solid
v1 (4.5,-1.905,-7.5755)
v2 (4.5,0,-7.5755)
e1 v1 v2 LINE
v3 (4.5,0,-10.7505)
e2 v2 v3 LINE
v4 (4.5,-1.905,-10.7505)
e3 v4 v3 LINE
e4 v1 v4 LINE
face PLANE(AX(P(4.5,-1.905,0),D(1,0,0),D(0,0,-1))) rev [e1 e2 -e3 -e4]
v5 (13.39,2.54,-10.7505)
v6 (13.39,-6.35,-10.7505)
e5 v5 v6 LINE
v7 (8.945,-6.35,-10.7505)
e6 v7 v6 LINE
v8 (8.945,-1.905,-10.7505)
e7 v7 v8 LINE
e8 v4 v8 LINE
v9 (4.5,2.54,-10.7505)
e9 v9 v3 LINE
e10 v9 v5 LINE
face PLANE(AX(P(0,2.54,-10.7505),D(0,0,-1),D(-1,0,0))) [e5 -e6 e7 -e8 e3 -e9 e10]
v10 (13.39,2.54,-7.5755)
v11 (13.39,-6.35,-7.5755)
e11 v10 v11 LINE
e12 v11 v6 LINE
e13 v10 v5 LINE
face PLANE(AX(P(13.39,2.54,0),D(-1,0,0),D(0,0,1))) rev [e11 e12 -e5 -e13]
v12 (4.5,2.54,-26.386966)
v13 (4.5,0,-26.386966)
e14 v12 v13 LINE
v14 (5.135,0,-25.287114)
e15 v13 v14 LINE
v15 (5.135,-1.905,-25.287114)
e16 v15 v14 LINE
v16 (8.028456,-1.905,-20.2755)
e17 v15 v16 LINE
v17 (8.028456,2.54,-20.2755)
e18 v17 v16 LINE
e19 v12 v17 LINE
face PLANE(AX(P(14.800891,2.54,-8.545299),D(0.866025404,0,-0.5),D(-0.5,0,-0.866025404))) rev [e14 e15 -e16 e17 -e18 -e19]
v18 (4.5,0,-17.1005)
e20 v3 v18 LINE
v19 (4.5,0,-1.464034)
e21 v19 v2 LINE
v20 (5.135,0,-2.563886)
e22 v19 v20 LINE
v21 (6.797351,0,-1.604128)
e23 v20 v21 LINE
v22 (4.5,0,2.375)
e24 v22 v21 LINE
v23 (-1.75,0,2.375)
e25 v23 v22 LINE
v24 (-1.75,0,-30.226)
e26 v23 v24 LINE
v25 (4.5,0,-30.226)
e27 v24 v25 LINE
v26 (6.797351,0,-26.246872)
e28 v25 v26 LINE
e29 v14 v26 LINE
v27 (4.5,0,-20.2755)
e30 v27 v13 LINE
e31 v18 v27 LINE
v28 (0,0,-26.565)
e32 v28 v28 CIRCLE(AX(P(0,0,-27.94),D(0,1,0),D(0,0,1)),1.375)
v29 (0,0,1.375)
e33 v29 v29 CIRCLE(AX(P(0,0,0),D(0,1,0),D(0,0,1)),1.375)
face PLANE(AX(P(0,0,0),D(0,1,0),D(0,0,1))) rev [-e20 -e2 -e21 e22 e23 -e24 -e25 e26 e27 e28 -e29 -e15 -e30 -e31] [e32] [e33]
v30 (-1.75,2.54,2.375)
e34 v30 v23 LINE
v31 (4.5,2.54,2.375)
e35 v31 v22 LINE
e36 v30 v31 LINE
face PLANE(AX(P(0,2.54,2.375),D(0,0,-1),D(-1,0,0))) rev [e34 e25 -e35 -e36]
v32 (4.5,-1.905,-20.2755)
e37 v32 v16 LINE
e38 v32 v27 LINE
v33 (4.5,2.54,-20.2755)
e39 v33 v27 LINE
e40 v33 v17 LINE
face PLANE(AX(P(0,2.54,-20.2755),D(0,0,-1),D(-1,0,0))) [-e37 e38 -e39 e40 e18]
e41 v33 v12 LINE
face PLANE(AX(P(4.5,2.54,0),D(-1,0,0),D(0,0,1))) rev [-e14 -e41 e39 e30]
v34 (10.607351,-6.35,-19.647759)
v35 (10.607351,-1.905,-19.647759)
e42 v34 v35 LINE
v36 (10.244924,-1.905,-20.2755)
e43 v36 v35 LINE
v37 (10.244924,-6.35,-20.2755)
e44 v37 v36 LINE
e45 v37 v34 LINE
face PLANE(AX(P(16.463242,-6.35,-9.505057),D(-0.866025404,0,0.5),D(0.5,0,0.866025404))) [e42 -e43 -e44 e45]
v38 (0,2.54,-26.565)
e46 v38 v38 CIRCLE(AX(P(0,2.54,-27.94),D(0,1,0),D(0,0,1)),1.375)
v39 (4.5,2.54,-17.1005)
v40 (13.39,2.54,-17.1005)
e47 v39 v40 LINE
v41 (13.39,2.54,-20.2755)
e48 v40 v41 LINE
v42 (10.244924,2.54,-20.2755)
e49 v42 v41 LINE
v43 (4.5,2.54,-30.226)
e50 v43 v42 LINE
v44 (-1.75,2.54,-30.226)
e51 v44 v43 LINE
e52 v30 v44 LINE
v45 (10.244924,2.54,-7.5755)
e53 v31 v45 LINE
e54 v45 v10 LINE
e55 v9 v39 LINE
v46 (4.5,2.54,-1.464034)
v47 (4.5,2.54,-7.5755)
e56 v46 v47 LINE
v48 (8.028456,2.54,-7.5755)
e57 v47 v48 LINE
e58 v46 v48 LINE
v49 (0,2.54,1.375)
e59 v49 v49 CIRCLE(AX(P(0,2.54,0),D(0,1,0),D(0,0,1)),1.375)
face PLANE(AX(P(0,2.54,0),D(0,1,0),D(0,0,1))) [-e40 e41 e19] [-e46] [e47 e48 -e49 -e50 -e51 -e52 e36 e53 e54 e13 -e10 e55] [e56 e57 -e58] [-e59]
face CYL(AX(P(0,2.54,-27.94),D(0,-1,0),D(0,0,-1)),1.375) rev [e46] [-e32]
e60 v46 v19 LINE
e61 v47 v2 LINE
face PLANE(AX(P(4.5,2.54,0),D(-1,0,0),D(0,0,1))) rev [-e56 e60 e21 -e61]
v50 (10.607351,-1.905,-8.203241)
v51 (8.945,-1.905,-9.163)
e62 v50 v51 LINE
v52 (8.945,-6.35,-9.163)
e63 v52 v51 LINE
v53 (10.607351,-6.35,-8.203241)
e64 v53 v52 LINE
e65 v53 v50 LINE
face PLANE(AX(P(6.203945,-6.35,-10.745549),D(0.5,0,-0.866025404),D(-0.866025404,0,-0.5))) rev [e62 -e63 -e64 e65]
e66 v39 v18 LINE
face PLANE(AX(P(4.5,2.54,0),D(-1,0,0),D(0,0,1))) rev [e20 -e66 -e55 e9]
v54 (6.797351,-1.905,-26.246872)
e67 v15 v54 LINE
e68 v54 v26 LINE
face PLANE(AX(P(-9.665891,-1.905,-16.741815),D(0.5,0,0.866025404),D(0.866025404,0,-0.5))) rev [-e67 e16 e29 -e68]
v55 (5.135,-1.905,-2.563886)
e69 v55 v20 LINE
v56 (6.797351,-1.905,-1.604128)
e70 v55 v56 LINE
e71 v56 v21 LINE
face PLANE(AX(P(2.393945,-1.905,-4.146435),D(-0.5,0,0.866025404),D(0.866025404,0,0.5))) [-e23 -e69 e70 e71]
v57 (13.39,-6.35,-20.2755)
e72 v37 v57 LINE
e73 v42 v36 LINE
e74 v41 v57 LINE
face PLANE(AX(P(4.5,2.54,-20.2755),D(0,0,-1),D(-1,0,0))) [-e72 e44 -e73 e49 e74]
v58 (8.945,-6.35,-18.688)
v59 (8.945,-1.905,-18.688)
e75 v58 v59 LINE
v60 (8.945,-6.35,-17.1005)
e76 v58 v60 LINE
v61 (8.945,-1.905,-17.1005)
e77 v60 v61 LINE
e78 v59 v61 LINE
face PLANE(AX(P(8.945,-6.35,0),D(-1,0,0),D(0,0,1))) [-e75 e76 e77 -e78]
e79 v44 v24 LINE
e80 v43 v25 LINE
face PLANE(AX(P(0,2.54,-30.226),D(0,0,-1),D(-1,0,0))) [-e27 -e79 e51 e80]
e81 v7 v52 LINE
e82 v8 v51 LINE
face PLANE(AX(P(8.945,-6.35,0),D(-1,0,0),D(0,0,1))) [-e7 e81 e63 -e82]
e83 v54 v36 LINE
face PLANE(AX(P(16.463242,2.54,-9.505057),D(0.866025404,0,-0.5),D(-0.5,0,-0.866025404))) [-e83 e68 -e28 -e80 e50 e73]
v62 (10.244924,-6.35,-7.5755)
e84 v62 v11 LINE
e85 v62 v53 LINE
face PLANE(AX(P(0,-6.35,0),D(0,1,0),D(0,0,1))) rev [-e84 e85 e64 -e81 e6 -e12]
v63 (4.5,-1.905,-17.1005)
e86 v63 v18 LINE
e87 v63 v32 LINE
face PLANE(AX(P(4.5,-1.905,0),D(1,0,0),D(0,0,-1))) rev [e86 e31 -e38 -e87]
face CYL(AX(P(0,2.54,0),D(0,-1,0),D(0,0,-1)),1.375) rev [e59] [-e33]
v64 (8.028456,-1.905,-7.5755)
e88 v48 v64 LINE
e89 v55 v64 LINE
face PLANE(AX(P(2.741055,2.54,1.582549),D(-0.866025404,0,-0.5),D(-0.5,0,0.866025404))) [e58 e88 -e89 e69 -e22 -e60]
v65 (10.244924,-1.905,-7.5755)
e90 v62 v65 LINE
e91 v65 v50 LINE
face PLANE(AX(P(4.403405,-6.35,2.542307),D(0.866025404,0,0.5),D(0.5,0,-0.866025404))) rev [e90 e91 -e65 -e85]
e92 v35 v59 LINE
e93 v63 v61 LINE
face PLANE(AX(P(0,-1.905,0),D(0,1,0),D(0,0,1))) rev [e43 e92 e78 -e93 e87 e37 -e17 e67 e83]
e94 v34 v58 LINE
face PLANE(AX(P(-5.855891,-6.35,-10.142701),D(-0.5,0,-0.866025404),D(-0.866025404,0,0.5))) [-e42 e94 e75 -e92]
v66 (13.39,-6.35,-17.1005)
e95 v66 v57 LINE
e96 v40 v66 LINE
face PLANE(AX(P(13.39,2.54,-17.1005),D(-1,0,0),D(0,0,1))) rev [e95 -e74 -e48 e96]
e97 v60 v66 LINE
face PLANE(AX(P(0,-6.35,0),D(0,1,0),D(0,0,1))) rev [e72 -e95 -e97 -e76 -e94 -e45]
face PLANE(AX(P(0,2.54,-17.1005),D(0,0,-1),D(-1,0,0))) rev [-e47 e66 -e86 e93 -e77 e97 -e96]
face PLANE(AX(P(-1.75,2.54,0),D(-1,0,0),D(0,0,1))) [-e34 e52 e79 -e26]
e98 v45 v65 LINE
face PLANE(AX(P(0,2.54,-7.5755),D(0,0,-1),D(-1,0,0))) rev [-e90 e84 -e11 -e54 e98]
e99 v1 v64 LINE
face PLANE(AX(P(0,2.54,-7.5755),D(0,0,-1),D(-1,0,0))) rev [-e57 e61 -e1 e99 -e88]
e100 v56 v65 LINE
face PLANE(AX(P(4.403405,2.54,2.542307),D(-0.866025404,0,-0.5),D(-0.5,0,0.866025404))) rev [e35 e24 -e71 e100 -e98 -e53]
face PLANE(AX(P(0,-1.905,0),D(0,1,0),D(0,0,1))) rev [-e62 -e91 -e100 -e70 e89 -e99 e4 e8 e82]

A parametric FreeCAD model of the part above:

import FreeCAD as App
import Part
import Sketcher
Q = App.Units.Quantity

doc = App.newDocument("Part")
params = doc.addObject("Spreadsheet::Sheet", "Params")
for row, (alias, value) in enumerate([
    ("sketch1_width", "0.35 in"),
    ("sketch1_height", "0.25 in"),
    ("pad1_length", "0.1 in"),
    ("sketch2_width", "0.35 in"),
    ("sketch2_height", "0.125 in"),
    ("pad2_length", "0.075 in"),
    ("sketch3_width", "0.175 in"),
    ("sketch3_height", "0.0625 in"),
    ("sketch3_height2", "0.125 in"),
    ("pad3_length", "0.25 in"),
], start=1):
    params.set(f"A{row}", alias)
    params.set(f"B{row}", "=" + value)
    params.setAlias(f"B{row}", alias)

body = doc.addObject("PartDesign::Body", "Body")

sketch1 = body.newObject("Sketcher::SketchObject", "Sketch")
sketch1.AttachmentSupport = (doc.getObject("XZ_Plane"), [""])
sketch1.MapMode = "FlatFace"
sketch1.addGeometry(Part.LineSegment(App.Vector(4.5, 2.4, 0), App.Vector(10.2, -7.6, 0)), False)
sketch1.addGeometry(Part.LineSegment(App.Vector(10.2, -7.6, 0), App.Vector(13.4, -7.6, 0)), False)
sketch1.addGeometry(Part.LineSegment(App.Vector(13.4, -7.6, 0), App.Vector(13.4, -10.8, 0)), False)
sketch1.addGeometry(Part.LineSegment(App.Vector(13.4, -10.8, 0), App.Vector(4.5, -10.8, 0)), False)
sketch1.addGeometry(Part.LineSegment(App.Vector(4.5, -10.8, 0), App.Vector(4.5, -17.1, 0)), False)
sketch1.addGeometry(Part.LineSegment(App.Vector(4.5, -17.1, 0), App.Vector(13.4, -17.1, 0)), False)
sketch1.addGeometry(Part.LineSegment(App.Vector(13.4, -17.1, 0), App.Vector(13.4, -20.3, 0)), False)
sketch1.addGeometry(Part.LineSegment(App.Vector(13.4, -20.3, 0), App.Vector(10.2, -20.3, 0)), False)
sketch1.addGeometry(Part.LineSegment(App.Vector(10.2, -20.3, 0), App.Vector(4.5, -30.2, 0)), False)
sketch1.addGeometry(Part.LineSegment(App.Vector(4.5, -30.2, 0), App.Vector(-1.8, -30.2, 0)), False)
sketch1.addGeometry(Part.LineSegment(App.Vector(-1.8, -30.2, 0), App.Vector(-1.8, 2.4, 0)), False)
sketch1.addGeometry(Part.LineSegment(App.Vector(-1.8, 2.4, 0), App.Vector(4.5, 2.4, 0)), False)
sketch1.addGeometry(Part.Circle(App.Vector(0, 0, 0), App.Vector(0, 0, 1), 1.4), False)
sketch1.addGeometry(Part.LineSegment(App.Vector(4.5, -1.5, 0), App.Vector(4.5, -7.6, 0)), False)
sketch1.addGeometry(Part.LineSegment(App.Vector(4.5, -7.6, 0), App.Vector(8, -7.6, 0)), False)
sketch1.addGeometry(Part.LineSegment(App.Vector(8, -7.6, 0), App.Vector(4.5, -1.5, 0)), False)
sketch1.addGeometry(Part.Circle(App.Vector(0, -27.9, 0), App.Vector(0, 0, 1), 1.4), False)
sketch1.addGeometry(Part.LineSegment(App.Vector(4.5, -20.3, 0), App.Vector(4.5, -26.4, 0)), False)
sketch1.addGeometry(Part.LineSegment(App.Vector(4.5, -26.4, 0), App.Vector(8, -20.3, 0)), False)
sketch1.addGeometry(Part.LineSegment(App.Vector(8, -20.3, 0), App.Vector(4.5, -20.3, 0)), False)
sketch1.addConstraint(Sketcher.Constraint("Coincident", 0, 2, 1, 1))
sketch1.addConstraint(Sketcher.Constraint("Coincident", 1, 2, 2, 1))
sketch1.addConstraint(Sketcher.Constraint("Coincident", 2, 2, 3, 1))
sketch1.addConstraint(Sketcher.Constraint("Coincident", 3, 2, 4, 1))
sketch1.addConstraint(Sketcher.Constraint("Coincident", 4, 2, 5, 1))
sketch1.addConstraint(Sketcher.Constraint("Coincident", 5, 2, 6, 1))
sketch1.addConstraint(Sketcher.Constraint("Coincident", 6, 2, 7, 1))
sketch1.addConstraint(Sketcher.Constraint("Coincident", 7, 2, 8, 1))
sketch1.addConstraint(Sketcher.Constraint("Coincident", 8, 2, 9, 1))
sketch1.addConstraint(Sketcher.Constraint("Coincident", 9, 2, 10, 1))
sketch1.addConstraint(Sketcher.Constraint("Coincident", 10, 2, 11, 1))
sketch1.addConstraint(Sketcher.Constraint("Coincident", 11, 2, 0, 1))
sketch1.addConstraint(Sketcher.Constraint("Coincident", 13, 2, 14, 1))
sketch1.addConstraint(Sketcher.Constraint("Coincident", 14, 2, 15, 1))
sketch1.addConstraint(Sketcher.Constraint("Coincident", 15, 2, 13, 1))
sketch1.addConstraint(Sketcher.Constraint("Coincident", 17, 2, 18, 1))
sketch1.addConstraint(Sketcher.Constraint("Coincident", 18, 2, 19, 1))
sketch1.addConstraint(Sketcher.Constraint("Coincident", 19, 2, 17, 1))
sketch1.addConstraint(Sketcher.Constraint("Horizontal", 1))
sketch1.addConstraint(Sketcher.Constraint("Vertical", 2))
sketch1.addConstraint(Sketcher.Constraint("Horizontal", 3))
sketch1.addConstraint(Sketcher.Constraint("Vertical", 4))
sketch1.addConstraint(Sketcher.Constraint("Horizontal", 5))
sketch1.addConstraint(Sketcher.Constraint("Vertical", 6))
sketch1.addConstraint(Sketcher.Constraint("Horizontal", 7))
sketch1.addConstraint(Sketcher.Constraint("Horizontal", 9))
sketch1.addConstraint(Sketcher.Constraint("Vertical", 10))
sketch1.addConstraint(Sketcher.Constraint("Horizontal", 11))
sketch1.addConstraint(Sketcher.Constraint("Vertical", 13))
sketch1.addConstraint(Sketcher.Constraint("Horizontal", 14))
sketch1.addConstraint(Sketcher.Constraint("Vertical", 17))
sketch1.addConstraint(Sketcher.Constraint("Horizontal", 19))
sketch1.addConstraint(Sketcher.Constraint("Coincident", 12, 3, -1, 1))
sketch1.addConstraint(Sketcher.Constraint("Equal", 12, 16))
sketch1.addConstraint(Sketcher.Constraint("PointOnObject", 16, 3, -2))
sketch1.addConstraint(Sketcher.Constraint("Parallel", 0, 15))
sketch1.addConstraint(Sketcher.Constraint("Parallel", 8, 18))
sketch1.addConstraint(Sketcher.Constraint("Horizontal", 1, 2, 13, 2))
sketch1.addConstraint(Sketcher.Constraint("Horizontal", 7, 2, 18, 2))
sketch1.addConstraint(Sketcher.Constraint("Vertical", 2, 2, 5, 2))
sketch1.addConstraint(Sketcher.Constraint("Vertical", 0, 2, 7, 2))
sketch1.addConstraint(Sketcher.Constraint("Vertical", 4, 2, 8, 2))
sketch1.addConstraint(Sketcher.Constraint("Vertical", 8, 2, 11, 2))
sketch1.addConstraint(Sketcher.Constraint("Vertical", 11, 2, 13, 2))
sketch1.addConstraint(Sketcher.Constraint("Vertical", 15, 2, 17, 2))
sketch1.addConstraint(Sketcher.Constraint("Vertical", 14, 2, 18, 2))
sketch1.addConstraint(Sketcher.Constraint("Equal", 2, 6))
sketch1.addConstraint(Sketcher.Constraint("Equal", 13, 17))
sketch1.addConstraint(Sketcher.Constraint("Angle", 0, Q("-60 deg")))
sketch1.addConstraint(Sketcher.Constraint("DistanceX", 3, 2, 3, 1, Q("0.35 in")))
sketch1.addConstraint(Sketcher.Constraint("DistanceY", 4, 2, 4, 1, Q("0.25 in")))
sketch1.addConstraint(Sketcher.Constraint("DistanceY", 16, 3, -1, 1, Q("1.1 in")))
sketch1.addConstraint(Sketcher.Constraint("DistanceY", 6, 2, 1, 2, Q("0.5 in")))
sketch1.addConstraint(Sketcher.Constraint("Diameter", 12, Q("2.75 mm")))
sketch1.addConstraint(Sketcher.Constraint("DistanceY", 8, 2, -1, 1, Q("1.19 in")))
sketch1.addConstraint(Sketcher.Constraint("DistanceX", 9, 2, 9, 1, Q("6.25 mm")))
sketch1.addConstraint(Sketcher.Constraint("DistanceY", 10, 1, 10, 2, Q("32.601 mm")))
sketch1.addConstraint(Sketcher.Constraint("DistanceX", -1, 1, 1, 2, Q("13.39 mm")))
sketch1.addConstraint(Sketcher.Constraint("DistanceX", 14, 1, 14, 2, Q("3.528456 mm")))
sketch1.setExpression("Constraints[49]", "Params.sketch1_width")
sketch1.setExpression("Constraints[50]", "Params.sketch1_height")
pad1 = body.newObject("PartDesign::Pad", "Pad")
pad1.Profile = sketch1
pad1.setExpression("Length", "Params.pad1_length")
pad1.Reversed = True

sketch2 = body.newObject("Sketcher::SketchObject", "Sketch001")
sketch2.AttachmentSupport = (doc.getObject("XZ_Plane"), [""])
sketch2.MapMode = "FlatFace"
sketch2.addGeometry(Part.LineSegment(App.Vector(4.5, -7.6, 0), App.Vector(8, -7.6, 0)), False)
sketch2.addGeometry(Part.LineSegment(App.Vector(8, -7.6, 0), App.Vector(5.1, -2.6, 0)), False)
sketch2.addGeometry(Part.LineSegment(App.Vector(5.1, -2.6, 0), App.Vector(6.8, -1.6, 0)), False)
sketch2.addGeometry(Part.LineSegment(App.Vector(6.8, -1.6, 0), App.Vector(10.2, -7.6, 0)), False)
sketch2.addGeometry(Part.LineSegment(App.Vector(10.2, -7.6, 0), App.Vector(13.4, -7.6, 0)), False)
sketch2.addGeometry(Part.LineSegment(App.Vector(13.4, -7.6, 0), App.Vector(13.4, -10.8, 0)), False)
sketch2.addGeometry(Part.LineSegment(App.Vector(13.4, -10.8, 0), App.Vector(4.5, -10.8, 0)), False)
sketch2.addGeometry(Part.LineSegment(App.Vector(4.5, -10.8, 0), App.Vector(4.5, -7.6, 0)), False)
sketch2.addGeometry(Part.LineSegment(App.Vector(13.4, -20.3, 0), App.Vector(10.2, -20.3, 0)), False)
sketch2.addGeometry(Part.LineSegment(App.Vector(10.2, -20.3, 0), App.Vector(6.8, -26.2, 0)), False)
sketch2.addGeometry(Part.LineSegment(App.Vector(6.8, -26.2, 0), App.Vector(5.1, -25.3, 0)), False)
sketch2.addGeometry(Part.LineSegment(App.Vector(5.1, -25.3, 0), App.Vector(8, -20.3, 0)), False)
sketch2.addGeometry(Part.LineSegment(App.Vector(8, -20.3, 0), App.Vector(4.5, -20.3, 0)), False)
sketch2.addGeometry(Part.LineSegment(App.Vector(4.5, -20.3, 0), App.Vector(4.5, -17.1, 0)), False)
sketch2.addGeometry(Part.LineSegment(App.Vector(4.5, -17.1, 0), App.Vector(13.4, -17.1, 0)), False)
sketch2.addGeometry(Part.LineSegment(App.Vector(13.4, -17.1, 0), App.Vector(13.4, -20.3, 0)), False)
sketch2.addConstraint(Sketcher.Constraint("Coincident", 0, 2, 1, 1))
sketch2.addConstraint(Sketcher.Constraint("Coincident", 1, 2, 2, 1))
sketch2.addConstraint(Sketcher.Constraint("Coincident", 2, 2, 3, 1))
sketch2.addConstraint(Sketcher.Constraint("Coincident", 3, 2, 4, 1))
sketch2.addConstraint(Sketcher.Constraint("Coincident", 4, 2, 5, 1))
sketch2.addConstraint(Sketcher.Constraint("Coincident", 5, 2, 6, 1))
sketch2.addConstraint(Sketcher.Constraint("Coincident", 6, 2, 7, 1))
sketch2.addConstraint(Sketcher.Constraint("Coincident", 7, 2, 0, 1))
sketch2.addConstraint(Sketcher.Constraint("Coincident", 8, 2, 9, 1))
sketch2.addConstraint(Sketcher.Constraint("Coincident", 9, 2, 10, 1))
sketch2.addConstraint(Sketcher.Constraint("Coincident", 10, 2, 11, 1))
sketch2.addConstraint(Sketcher.Constraint("Coincident", 11, 2, 12, 1))
sketch2.addConstraint(Sketcher.Constraint("Coincident", 12, 2, 13, 1))
sketch2.addConstraint(Sketcher.Constraint("Coincident", 13, 2, 14, 1))
sketch2.addConstraint(Sketcher.Constraint("Coincident", 14, 2, 15, 1))
sketch2.addConstraint(Sketcher.Constraint("Coincident", 15, 2, 8, 1))
sketch2.addConstraint(Sketcher.Constraint("Horizontal", 0))
sketch2.addConstraint(Sketcher.Constraint("Horizontal", 4))
sketch2.addConstraint(Sketcher.Constraint("Vertical", 5))
sketch2.addConstraint(Sketcher.Constraint("Horizontal", 6))
sketch2.addConstraint(Sketcher.Constraint("Vertical", 7))
sketch2.addConstraint(Sketcher.Constraint("Horizontal", 8))
sketch2.addConstraint(Sketcher.Constraint("Horizontal", 12))
sketch2.addConstraint(Sketcher.Constraint("Vertical", 13))
sketch2.addConstraint(Sketcher.Constraint("Horizontal", 14))
sketch2.addConstraint(Sketcher.Constraint("Vertical", 15))
sketch2.addConstraint(Sketcher.Constraint("Perpendicular", 1, 2))
sketch2.addConstraint(Sketcher.Constraint("Perpendicular", 2, 3))
sketch2.addConstraint(Sketcher.Constraint("Perpendicular", 9, 10))
sketch2.addConstraint(Sketcher.Constraint("Perpendicular", 10, 11))
sketch2.addConstraint(Sketcher.Constraint("Horizontal", 0, 2, 3, 2))
sketch2.addConstraint(Sketcher.Constraint("Horizontal", 8, 2, 11, 2))
sketch2.addConstraint(Sketcher.Constraint("Vertical", 3, 2, 8, 2))
sketch2.addConstraint(Sketcher.Constraint("Vertical", 2, 2, 9, 2))
sketch2.addConstraint(Sketcher.Constraint("Vertical", 1, 2, 10, 2))
sketch2.addConstraint(Sketcher.Constraint("Vertical", 0, 2, 11, 2))
sketch2.addConstraint(Sketcher.Constraint("Vertical", 7, 2, 12, 2))
sketch2.addConstraint(Sketcher.Constraint("Vertical", 5, 2, 14, 2))
sketch2.addConstraint(Sketcher.Constraint("Equal", 7, 13))
sketch2.addConstraint(Sketcher.Constraint("Angle", 1, Q("120 deg")))
sketch2.addConstraint(Sketcher.Constraint("DistanceX", 6, 2, 6, 1, Q("0.35 in")))
sketch2.addConstraint(Sketcher.Constraint("DistanceY", 8, 2, 3, 2, Q("0.5 in")))
sketch2.addConstraint(Sketcher.Constraint("DistanceY", 5, 2, 5, 1, Q("0.125 in")))
sketch2.addConstraint(Sketcher.Constraint("DistanceX", 1, 2, 4, 2, Q("0.325 in")))
sketch2.addConstraint(Sketcher.Constraint("DistanceY", 0, 2, -1, 1, Q("7.5755 mm")))
sketch2.addConstraint(Sketcher.Constraint("DistanceX", -1, 1, 1, 2, Q("5.135 mm")))
sketch2.addConstraint(Sketcher.Constraint("DistanceX", 0, 1, 0, 2, Q("3.528456 mm")))
sketch2.addConstraint(Sketcher.Constraint("DistanceX", 4, 1, 4, 2, Q("3.145076 mm")))
sketch2.setExpression("Constraints[40]", "Params.sketch2_width")
sketch2.setExpression("Constraints[42]", "Params.sketch2_height")
pad2 = body.newObject("PartDesign::Pad", "Pad001")
pad2.Profile = sketch2
pad2.setExpression("Length", "Params.pad2_length")

sketch3 = body.newObject("Sketcher::SketchObject", "Sketch002")
sketch3.AttachmentSupport = (doc.getObject("XZ_Plane"), [""])
sketch3.MapMode = "FlatFace"
sketch3.addGeometry(Part.LineSegment(App.Vector(13.4, -20.3, 0), App.Vector(10.2, -20.3, 0)), False)
sketch3.addGeometry(Part.LineSegment(App.Vector(10.2, -20.3, 0), App.Vector(10.6, -19.6, 0)), False)
sketch3.addGeometry(Part.LineSegment(App.Vector(10.6, -19.6, 0), App.Vector(8.9, -18.7, 0)), False)
sketch3.addGeometry(Part.LineSegment(App.Vector(8.9, -18.7, 0), App.Vector(8.9, -17.1, 0)), False)
sketch3.addGeometry(Part.LineSegment(App.Vector(8.9, -17.1, 0), App.Vector(13.4, -17.1, 0)), False)
sketch3.addGeometry(Part.LineSegment(App.Vector(13.4, -17.1, 0), App.Vector(13.4, -20.3, 0)), False)
sketch3.addGeometry(Part.LineSegment(App.Vector(13.4, -10.8, 0), App.Vector(8.9, -10.8, 0)), False)
sketch3.addGeometry(Part.LineSegment(App.Vector(8.9, -10.8, 0), App.Vector(8.9, -9.2, 0)), False)
sketch3.addGeometry(Part.LineSegment(App.Vector(8.9, -9.2, 0), App.Vector(10.6, -8.2, 0)), False)
sketch3.addGeometry(Part.LineSegment(App.Vector(10.6, -8.2, 0), App.Vector(10.2, -7.6, 0)), False)
sketch3.addGeometry(Part.LineSegment(App.Vector(10.2, -7.6, 0), App.Vector(13.4, -7.6, 0)), False)
sketch3.addGeometry(Part.LineSegment(App.Vector(13.4, -7.6, 0), App.Vector(13.4, -10.8, 0)), False)
sketch3.addConstraint(Sketcher.Constraint("Coincident", 0, 2, 1, 1))
sketch3.addConstraint(Sketcher.Constraint("Coincident", 1, 2, 2, 1))
sketch3.addConstraint(Sketcher.Constraint("Coincident", 2, 2, 3, 1))
sketch3.addConstraint(Sketcher.Constraint("Coincident", 3, 2, 4, 1))
sketch3.addConstraint(Sketcher.Constraint("Coincident", 4, 2, 5, 1))
sketch3.addConstraint(Sketcher.Constraint("Coincident", 5, 2, 0, 1))
sketch3.addConstraint(Sketcher.Constraint("Coincident", 6, 2, 7, 1))
sketch3.addConstraint(Sketcher.Constraint("Coincident", 7, 2, 8, 1))
sketch3.addConstraint(Sketcher.Constraint("Coincident", 8, 2, 9, 1))
sketch3.addConstraint(Sketcher.Constraint("Coincident", 9, 2, 10, 1))
sketch3.addConstraint(Sketcher.Constraint("Coincident", 10, 2, 11, 1))
sketch3.addConstraint(Sketcher.Constraint("Coincident", 11, 2, 6, 1))
sketch3.addConstraint(Sketcher.Constraint("Horizontal", 0))
sketch3.addConstraint(Sketcher.Constraint("Vertical", 3))
sketch3.addConstraint(Sketcher.Constraint("Horizontal", 4))
sketch3.addConstraint(Sketcher.Constraint("Vertical", 5))
sketch3.addConstraint(Sketcher.Constraint("Horizontal", 6))
sketch3.addConstraint(Sketcher.Constraint("Vertical", 7))
sketch3.addConstraint(Sketcher.Constraint("Horizontal", 10))
sketch3.addConstraint(Sketcher.Constraint("Vertical", 11))
sketch3.addConstraint(Sketcher.Constraint("Perpendicular", 1, 2))
sketch3.addConstraint(Sketcher.Constraint("Perpendicular", 8, 9))
sketch3.addConstraint(Sketcher.Constraint("Vertical", 3, 2, 6, 2))
sketch3.addConstraint(Sketcher.Constraint("Vertical", 1, 2, 8, 2))
sketch3.addConstraint(Sketcher.Constraint("Vertical", 0, 2, 9, 2))
sketch3.addConstraint(Sketcher.Constraint("Vertical", 5, 2, 10, 2))
sketch3.addConstraint(Sketcher.Constraint("Equal", 3, 7))
sketch3.addConstraint(Sketcher.Constraint("Equal", 5, 11))
sketch3.addConstraint(Sketcher.Constraint("Angle", 1, Q("60 deg")))
sketch3.addConstraint(Sketcher.Constraint("DistanceX", 4, 1, 4, 2, Q("0.175 in")))
sketch3.addConstraint(Sketcher.Constraint("DistanceY", 3, 1, 3, 2, Q("0.0625 in")))
sketch3.addConstraint(Sketcher.Constraint("DistanceY", 5, 2, 5, 1, Q("0.125 in")))
sketch3.addConstraint(Sketcher.Constraint("DistanceY", 3, 2, 6, 2, Q("0.25 in")))
sketch3.addConstraint(Sketcher.Constraint("DistanceY", 0, 2, -1, 1, Q("20.2755 mm")))
sketch3.addConstraint(Sketcher.Constraint("DistanceX", -1, 1, 2, 2, Q("8.945 mm")))
sketch3.addConstraint(Sketcher.Constraint("DistanceX", 0, 2, 0, 1, Q("3.145076 mm")))
sketch3.setExpression("Constraints[29]", "Params.sketch3_width")
sketch3.setExpression("Constraints[30]", "Params.sketch3_height")
sketch3.setExpression("Constraints[31]", "Params.sketch3_height2")
pad3 = body.newObject("PartDesign::Pad", "Pad002")
pad3.Profile = sketch3
pad3.setExpression("Length", "Params.pad3_length")

doc.recompute()
